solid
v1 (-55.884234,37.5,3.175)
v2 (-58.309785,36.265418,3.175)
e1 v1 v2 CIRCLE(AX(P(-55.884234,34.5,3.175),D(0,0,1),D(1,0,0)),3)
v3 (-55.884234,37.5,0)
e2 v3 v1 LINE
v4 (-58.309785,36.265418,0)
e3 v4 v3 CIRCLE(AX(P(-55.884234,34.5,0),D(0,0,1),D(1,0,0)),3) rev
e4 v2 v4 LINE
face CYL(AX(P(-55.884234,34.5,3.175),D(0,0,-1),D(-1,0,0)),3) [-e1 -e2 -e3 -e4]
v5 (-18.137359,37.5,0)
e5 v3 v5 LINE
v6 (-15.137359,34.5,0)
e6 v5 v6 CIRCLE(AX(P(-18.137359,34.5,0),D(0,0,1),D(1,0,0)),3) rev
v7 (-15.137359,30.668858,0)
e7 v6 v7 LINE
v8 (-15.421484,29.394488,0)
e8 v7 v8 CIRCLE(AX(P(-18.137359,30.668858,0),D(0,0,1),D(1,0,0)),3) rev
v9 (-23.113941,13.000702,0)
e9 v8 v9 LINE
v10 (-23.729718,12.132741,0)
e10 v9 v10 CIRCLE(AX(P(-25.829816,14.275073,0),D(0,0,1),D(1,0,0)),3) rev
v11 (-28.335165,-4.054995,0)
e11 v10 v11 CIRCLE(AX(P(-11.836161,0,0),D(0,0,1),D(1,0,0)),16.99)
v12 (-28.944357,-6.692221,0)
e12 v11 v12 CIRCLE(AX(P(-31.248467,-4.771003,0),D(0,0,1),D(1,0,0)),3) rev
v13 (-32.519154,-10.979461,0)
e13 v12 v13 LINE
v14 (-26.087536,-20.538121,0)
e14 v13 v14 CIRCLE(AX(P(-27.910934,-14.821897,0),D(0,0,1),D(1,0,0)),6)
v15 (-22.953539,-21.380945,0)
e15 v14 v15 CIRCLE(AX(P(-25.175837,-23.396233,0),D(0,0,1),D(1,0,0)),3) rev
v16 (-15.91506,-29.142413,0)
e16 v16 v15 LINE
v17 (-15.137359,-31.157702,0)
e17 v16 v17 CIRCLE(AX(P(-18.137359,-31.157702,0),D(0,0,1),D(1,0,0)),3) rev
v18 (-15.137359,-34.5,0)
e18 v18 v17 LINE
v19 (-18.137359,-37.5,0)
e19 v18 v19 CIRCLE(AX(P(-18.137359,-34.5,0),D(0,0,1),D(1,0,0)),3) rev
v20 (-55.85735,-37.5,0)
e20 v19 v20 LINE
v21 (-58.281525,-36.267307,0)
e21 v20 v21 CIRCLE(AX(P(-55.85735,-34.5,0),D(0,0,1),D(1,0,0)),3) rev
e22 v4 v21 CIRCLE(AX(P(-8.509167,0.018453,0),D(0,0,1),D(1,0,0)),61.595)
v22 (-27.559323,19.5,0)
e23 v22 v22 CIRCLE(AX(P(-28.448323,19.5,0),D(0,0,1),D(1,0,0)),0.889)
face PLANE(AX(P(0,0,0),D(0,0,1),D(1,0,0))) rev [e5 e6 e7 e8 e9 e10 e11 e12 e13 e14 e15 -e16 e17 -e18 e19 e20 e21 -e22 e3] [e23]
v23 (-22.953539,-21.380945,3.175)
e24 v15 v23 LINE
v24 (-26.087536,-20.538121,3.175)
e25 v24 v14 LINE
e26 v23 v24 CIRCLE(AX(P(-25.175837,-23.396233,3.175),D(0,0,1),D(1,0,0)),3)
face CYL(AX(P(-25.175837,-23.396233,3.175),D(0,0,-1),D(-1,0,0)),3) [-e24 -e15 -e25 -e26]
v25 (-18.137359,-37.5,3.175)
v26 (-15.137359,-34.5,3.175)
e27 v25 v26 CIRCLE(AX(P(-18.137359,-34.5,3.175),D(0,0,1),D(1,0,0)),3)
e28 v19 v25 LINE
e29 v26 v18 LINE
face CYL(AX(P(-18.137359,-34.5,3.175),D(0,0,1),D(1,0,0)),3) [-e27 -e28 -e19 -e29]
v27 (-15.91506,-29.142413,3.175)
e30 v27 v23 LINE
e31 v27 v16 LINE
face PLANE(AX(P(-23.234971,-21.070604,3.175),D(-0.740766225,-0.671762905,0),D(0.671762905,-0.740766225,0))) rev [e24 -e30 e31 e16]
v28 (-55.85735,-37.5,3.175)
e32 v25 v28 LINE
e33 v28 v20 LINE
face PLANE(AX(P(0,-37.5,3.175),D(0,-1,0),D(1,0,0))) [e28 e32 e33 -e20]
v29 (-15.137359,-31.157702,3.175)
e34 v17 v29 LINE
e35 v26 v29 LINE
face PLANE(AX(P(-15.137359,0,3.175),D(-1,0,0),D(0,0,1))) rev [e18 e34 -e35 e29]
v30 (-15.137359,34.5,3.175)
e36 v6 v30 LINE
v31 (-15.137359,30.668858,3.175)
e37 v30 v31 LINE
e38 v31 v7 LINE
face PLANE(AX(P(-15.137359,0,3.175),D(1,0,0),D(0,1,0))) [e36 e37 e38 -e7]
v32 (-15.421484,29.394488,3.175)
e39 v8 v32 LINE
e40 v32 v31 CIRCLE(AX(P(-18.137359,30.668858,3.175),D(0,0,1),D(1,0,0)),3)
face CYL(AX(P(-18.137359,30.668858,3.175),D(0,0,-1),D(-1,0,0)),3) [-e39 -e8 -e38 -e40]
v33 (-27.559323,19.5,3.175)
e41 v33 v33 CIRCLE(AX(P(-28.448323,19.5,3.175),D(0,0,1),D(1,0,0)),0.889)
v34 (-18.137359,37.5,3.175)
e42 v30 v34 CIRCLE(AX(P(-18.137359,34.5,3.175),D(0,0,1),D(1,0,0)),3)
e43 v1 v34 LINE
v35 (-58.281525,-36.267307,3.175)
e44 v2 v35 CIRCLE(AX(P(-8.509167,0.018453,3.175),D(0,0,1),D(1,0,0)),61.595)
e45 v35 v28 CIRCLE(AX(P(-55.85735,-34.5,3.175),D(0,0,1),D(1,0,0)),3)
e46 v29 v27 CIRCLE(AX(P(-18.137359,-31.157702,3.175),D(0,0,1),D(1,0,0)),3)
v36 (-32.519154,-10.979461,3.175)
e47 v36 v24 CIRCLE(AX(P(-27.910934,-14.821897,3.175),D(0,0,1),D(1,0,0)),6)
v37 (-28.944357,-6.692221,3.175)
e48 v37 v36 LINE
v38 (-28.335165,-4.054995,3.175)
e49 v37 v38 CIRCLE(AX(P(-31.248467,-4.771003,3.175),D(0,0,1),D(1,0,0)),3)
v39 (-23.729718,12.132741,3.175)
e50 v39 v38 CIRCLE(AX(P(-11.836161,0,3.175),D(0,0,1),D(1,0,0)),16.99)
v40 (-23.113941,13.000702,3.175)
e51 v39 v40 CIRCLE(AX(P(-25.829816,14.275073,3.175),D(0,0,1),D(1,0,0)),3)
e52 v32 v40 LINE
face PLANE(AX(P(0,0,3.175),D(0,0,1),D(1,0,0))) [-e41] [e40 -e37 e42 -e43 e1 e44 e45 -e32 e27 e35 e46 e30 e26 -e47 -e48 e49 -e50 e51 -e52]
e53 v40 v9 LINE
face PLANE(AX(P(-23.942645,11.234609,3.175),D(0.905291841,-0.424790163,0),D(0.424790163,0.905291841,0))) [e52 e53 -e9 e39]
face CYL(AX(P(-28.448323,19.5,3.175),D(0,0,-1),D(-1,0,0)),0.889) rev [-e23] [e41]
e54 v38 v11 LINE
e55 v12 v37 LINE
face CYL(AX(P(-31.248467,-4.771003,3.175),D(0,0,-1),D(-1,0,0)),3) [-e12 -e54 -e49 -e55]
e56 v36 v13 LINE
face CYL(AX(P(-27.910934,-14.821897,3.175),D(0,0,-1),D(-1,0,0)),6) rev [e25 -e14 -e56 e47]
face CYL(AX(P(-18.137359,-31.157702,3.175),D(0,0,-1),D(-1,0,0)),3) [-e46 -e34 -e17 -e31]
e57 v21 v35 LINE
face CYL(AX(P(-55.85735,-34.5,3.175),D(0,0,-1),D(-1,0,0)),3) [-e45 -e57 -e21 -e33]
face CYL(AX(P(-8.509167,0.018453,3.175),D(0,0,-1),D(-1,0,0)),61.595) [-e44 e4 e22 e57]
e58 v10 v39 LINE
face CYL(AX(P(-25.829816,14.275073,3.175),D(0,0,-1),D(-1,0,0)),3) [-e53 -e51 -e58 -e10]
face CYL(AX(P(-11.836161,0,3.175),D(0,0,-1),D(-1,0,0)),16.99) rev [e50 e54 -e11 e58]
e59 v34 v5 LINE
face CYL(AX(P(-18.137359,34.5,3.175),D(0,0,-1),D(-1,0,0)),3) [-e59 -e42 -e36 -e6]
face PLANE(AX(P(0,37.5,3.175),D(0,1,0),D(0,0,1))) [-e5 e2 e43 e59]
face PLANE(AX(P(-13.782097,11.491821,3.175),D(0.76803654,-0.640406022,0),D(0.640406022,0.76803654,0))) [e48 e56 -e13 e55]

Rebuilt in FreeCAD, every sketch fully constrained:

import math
import FreeCAD as App
import Part
import Sketcher

V = App.Vector


def edges_at(feature, points):
    """Names of the edges that pass closest to the given points."""
    edges = feature.Shape.Edges
    near = lambda p: min(range(len(edges)), key=lambda i: edges[i].distToShape(Part.Vertex(*p))[0])
    return sorted({f"Edge{near(p) + 1}" for p in points})

doc = App.newDocument("Part")
body = doc.addObject("PartDesign::Body", "Body")

# Sketch on XY plane
sketch1 = doc.addObject("Sketcher::SketchObject", "Sketch")
body.addObject(sketch1)
sketch1.AttachmentSupport = (doc.XY_Plane, [""])
sketch1.MapMode = "FlatFace"
sketch1.addGeometry([
    Part.LineSegment(V(-15.1, 37.5, 0), V(-57.4, 37.5, 0)),  # 0
    Part.ArcOfCircle(Part.Circle(V(-8.5, 0, 0), V(0, 0, 1), 61.6), math.radians(143), math.radians(218)),  # 1
    Part.LineSegment(V(-57.4, -37.5, 0), V(-15.1, -37.5, 0)),  # 2
    Part.LineSegment(V(-15.1, -37.5, 0), V(-15.1, -30, 0)),  # 3
    Part.LineSegment(V(-15.1, -30, 0), V(-24.5, -19.7, 0)),  # 4
    Part.ArcOfCircle(Part.Circle(V(-27.9, -14.8, 0), V(0, 0, 1), 6), math.radians(140), math.radians(305)),  # 5
    Part.LineSegment(V(-32.5, -11, 0), V(-27.9, -5.5, 0)),  # 6
    Part.ArcOfCircle(Part.Circle(V(-11.8, 0, 0), V(0, 0, 1), 17), math.radians(133), math.radians(199)),  # 7
    Part.LineSegment(V(-23.4, 12.5, 0), V(-15.1, 30, 0)),  # 8
    Part.LineSegment(V(-15.1, 30, 0), V(-15.1, 37.5, 0)),  # 9
    Part.Circle(V(-28.4, 19.5, 0), V(0, 0, 1), 0.9),  # 10
], False)
sketch1.addConstraint([
    Sketcher.Constraint("Coincident", 0, 2, 1, 1),
    Sketcher.Constraint("Coincident", 1, 2, 2, 1),
    Sketcher.Constraint("Coincident", 2, 2, 3, 1),
    Sketcher.Constraint("Coincident", 3, 2, 4, 1),
    Sketcher.Constraint("Coincident", 4, 2, 5, 2),
    Sketcher.Constraint("Tangent", 5, 1, 6, 1),
    Sketcher.Constraint("Coincident", 6, 2, 7, 2),
    Sketcher.Constraint("Coincident", 7, 1, 8, 1),
    Sketcher.Constraint("Coincident", 8, 2, 9, 1),
    Sketcher.Constraint("Coincident", 9, 2, 0, 1),
    Sketcher.Constraint("Horizontal", 0),
    Sketcher.Constraint("Horizontal", 2),
    Sketcher.Constraint("Vertical", 3),
    Sketcher.Constraint("Vertical", 9),
    Sketcher.Constraint("Symmetric", 3, 2, 8, 2, -1),
    Sketcher.Constraint("PointOnObject", 7, 3, -1),
    Sketcher.Constraint("Equal", 3, 9),
    Sketcher.Constraint("Radius", 5, 6.0),
    Sketcher.Constraint("Radius", 7, 16.99),
    Sketcher.Constraint("Diameter", 10, 1.778),
    Sketcher.Constraint("DistanceY", 3, 1, 3, 2, 7.5),
    Sketcher.Constraint("DistanceY", 3, 2, -1, 1, 30.0),
    Sketcher.Constraint("Radius", 1, 61.595),
    Sketcher.Constraint("DistanceY", 10, 3, 0, 2, 18.0),
    Sketcher.Constraint("DistanceX", 0, 2, 0, 1, 42.25),
    Sketcher.Constraint("DistanceY", 4, 2, -1, 1, 19.7261),
    Sketcher.Constraint("DistanceX", 0, 2, 7, 3, 45.551198),
    Sketcher.Constraint("DistanceX", 1, 2, 5, 3, 29.448102),
    Sketcher.Constraint("Distance", 6, 7.17755),
    Sketcher.Constraint("Distance", 8, 19.341119),
    Sketcher.Constraint("DistanceX", 2, 1, 2, 2, 42.221677),
    Sketcher.Constraint("DistanceX", 7, 3, -1, 1, 11.836161),
    Sketcher.Constraint("DistanceY", 5, 1, -1, 1, 10.979461),
    Sketcher.Constraint("DistanceX", 10, 3, 5, 3, 0.537389),
])
pad1 = doc.addObject("PartDesign::Pad", "Pad")
body.addObject(pad1)
pad1.Profile = sketch1
pad1.Length = 3.175
doc.recompute()

fillet = doc.addObject("PartDesign::Fillet", "Fillet")
body.addObject(fillet)
fillet.Base = (pad1, edges_at(pad1, [
    (-24.454, -19.726, 1.587),
    (-15.137, -30, 1.587),
    (-15.137, -37.5, 1.587),
    (-57.359, -37.5, 1.587),
    (-57.387, 37.5, 1.587),
    (-15.137, 37.5, 1.587),
    (-15.137, 30, 1.587),
    (-23.353, 12.491, 1.587),
    (-27.923, -5.467, 1.587),
]))
fillet.Radius = 3

doc.recompute()
